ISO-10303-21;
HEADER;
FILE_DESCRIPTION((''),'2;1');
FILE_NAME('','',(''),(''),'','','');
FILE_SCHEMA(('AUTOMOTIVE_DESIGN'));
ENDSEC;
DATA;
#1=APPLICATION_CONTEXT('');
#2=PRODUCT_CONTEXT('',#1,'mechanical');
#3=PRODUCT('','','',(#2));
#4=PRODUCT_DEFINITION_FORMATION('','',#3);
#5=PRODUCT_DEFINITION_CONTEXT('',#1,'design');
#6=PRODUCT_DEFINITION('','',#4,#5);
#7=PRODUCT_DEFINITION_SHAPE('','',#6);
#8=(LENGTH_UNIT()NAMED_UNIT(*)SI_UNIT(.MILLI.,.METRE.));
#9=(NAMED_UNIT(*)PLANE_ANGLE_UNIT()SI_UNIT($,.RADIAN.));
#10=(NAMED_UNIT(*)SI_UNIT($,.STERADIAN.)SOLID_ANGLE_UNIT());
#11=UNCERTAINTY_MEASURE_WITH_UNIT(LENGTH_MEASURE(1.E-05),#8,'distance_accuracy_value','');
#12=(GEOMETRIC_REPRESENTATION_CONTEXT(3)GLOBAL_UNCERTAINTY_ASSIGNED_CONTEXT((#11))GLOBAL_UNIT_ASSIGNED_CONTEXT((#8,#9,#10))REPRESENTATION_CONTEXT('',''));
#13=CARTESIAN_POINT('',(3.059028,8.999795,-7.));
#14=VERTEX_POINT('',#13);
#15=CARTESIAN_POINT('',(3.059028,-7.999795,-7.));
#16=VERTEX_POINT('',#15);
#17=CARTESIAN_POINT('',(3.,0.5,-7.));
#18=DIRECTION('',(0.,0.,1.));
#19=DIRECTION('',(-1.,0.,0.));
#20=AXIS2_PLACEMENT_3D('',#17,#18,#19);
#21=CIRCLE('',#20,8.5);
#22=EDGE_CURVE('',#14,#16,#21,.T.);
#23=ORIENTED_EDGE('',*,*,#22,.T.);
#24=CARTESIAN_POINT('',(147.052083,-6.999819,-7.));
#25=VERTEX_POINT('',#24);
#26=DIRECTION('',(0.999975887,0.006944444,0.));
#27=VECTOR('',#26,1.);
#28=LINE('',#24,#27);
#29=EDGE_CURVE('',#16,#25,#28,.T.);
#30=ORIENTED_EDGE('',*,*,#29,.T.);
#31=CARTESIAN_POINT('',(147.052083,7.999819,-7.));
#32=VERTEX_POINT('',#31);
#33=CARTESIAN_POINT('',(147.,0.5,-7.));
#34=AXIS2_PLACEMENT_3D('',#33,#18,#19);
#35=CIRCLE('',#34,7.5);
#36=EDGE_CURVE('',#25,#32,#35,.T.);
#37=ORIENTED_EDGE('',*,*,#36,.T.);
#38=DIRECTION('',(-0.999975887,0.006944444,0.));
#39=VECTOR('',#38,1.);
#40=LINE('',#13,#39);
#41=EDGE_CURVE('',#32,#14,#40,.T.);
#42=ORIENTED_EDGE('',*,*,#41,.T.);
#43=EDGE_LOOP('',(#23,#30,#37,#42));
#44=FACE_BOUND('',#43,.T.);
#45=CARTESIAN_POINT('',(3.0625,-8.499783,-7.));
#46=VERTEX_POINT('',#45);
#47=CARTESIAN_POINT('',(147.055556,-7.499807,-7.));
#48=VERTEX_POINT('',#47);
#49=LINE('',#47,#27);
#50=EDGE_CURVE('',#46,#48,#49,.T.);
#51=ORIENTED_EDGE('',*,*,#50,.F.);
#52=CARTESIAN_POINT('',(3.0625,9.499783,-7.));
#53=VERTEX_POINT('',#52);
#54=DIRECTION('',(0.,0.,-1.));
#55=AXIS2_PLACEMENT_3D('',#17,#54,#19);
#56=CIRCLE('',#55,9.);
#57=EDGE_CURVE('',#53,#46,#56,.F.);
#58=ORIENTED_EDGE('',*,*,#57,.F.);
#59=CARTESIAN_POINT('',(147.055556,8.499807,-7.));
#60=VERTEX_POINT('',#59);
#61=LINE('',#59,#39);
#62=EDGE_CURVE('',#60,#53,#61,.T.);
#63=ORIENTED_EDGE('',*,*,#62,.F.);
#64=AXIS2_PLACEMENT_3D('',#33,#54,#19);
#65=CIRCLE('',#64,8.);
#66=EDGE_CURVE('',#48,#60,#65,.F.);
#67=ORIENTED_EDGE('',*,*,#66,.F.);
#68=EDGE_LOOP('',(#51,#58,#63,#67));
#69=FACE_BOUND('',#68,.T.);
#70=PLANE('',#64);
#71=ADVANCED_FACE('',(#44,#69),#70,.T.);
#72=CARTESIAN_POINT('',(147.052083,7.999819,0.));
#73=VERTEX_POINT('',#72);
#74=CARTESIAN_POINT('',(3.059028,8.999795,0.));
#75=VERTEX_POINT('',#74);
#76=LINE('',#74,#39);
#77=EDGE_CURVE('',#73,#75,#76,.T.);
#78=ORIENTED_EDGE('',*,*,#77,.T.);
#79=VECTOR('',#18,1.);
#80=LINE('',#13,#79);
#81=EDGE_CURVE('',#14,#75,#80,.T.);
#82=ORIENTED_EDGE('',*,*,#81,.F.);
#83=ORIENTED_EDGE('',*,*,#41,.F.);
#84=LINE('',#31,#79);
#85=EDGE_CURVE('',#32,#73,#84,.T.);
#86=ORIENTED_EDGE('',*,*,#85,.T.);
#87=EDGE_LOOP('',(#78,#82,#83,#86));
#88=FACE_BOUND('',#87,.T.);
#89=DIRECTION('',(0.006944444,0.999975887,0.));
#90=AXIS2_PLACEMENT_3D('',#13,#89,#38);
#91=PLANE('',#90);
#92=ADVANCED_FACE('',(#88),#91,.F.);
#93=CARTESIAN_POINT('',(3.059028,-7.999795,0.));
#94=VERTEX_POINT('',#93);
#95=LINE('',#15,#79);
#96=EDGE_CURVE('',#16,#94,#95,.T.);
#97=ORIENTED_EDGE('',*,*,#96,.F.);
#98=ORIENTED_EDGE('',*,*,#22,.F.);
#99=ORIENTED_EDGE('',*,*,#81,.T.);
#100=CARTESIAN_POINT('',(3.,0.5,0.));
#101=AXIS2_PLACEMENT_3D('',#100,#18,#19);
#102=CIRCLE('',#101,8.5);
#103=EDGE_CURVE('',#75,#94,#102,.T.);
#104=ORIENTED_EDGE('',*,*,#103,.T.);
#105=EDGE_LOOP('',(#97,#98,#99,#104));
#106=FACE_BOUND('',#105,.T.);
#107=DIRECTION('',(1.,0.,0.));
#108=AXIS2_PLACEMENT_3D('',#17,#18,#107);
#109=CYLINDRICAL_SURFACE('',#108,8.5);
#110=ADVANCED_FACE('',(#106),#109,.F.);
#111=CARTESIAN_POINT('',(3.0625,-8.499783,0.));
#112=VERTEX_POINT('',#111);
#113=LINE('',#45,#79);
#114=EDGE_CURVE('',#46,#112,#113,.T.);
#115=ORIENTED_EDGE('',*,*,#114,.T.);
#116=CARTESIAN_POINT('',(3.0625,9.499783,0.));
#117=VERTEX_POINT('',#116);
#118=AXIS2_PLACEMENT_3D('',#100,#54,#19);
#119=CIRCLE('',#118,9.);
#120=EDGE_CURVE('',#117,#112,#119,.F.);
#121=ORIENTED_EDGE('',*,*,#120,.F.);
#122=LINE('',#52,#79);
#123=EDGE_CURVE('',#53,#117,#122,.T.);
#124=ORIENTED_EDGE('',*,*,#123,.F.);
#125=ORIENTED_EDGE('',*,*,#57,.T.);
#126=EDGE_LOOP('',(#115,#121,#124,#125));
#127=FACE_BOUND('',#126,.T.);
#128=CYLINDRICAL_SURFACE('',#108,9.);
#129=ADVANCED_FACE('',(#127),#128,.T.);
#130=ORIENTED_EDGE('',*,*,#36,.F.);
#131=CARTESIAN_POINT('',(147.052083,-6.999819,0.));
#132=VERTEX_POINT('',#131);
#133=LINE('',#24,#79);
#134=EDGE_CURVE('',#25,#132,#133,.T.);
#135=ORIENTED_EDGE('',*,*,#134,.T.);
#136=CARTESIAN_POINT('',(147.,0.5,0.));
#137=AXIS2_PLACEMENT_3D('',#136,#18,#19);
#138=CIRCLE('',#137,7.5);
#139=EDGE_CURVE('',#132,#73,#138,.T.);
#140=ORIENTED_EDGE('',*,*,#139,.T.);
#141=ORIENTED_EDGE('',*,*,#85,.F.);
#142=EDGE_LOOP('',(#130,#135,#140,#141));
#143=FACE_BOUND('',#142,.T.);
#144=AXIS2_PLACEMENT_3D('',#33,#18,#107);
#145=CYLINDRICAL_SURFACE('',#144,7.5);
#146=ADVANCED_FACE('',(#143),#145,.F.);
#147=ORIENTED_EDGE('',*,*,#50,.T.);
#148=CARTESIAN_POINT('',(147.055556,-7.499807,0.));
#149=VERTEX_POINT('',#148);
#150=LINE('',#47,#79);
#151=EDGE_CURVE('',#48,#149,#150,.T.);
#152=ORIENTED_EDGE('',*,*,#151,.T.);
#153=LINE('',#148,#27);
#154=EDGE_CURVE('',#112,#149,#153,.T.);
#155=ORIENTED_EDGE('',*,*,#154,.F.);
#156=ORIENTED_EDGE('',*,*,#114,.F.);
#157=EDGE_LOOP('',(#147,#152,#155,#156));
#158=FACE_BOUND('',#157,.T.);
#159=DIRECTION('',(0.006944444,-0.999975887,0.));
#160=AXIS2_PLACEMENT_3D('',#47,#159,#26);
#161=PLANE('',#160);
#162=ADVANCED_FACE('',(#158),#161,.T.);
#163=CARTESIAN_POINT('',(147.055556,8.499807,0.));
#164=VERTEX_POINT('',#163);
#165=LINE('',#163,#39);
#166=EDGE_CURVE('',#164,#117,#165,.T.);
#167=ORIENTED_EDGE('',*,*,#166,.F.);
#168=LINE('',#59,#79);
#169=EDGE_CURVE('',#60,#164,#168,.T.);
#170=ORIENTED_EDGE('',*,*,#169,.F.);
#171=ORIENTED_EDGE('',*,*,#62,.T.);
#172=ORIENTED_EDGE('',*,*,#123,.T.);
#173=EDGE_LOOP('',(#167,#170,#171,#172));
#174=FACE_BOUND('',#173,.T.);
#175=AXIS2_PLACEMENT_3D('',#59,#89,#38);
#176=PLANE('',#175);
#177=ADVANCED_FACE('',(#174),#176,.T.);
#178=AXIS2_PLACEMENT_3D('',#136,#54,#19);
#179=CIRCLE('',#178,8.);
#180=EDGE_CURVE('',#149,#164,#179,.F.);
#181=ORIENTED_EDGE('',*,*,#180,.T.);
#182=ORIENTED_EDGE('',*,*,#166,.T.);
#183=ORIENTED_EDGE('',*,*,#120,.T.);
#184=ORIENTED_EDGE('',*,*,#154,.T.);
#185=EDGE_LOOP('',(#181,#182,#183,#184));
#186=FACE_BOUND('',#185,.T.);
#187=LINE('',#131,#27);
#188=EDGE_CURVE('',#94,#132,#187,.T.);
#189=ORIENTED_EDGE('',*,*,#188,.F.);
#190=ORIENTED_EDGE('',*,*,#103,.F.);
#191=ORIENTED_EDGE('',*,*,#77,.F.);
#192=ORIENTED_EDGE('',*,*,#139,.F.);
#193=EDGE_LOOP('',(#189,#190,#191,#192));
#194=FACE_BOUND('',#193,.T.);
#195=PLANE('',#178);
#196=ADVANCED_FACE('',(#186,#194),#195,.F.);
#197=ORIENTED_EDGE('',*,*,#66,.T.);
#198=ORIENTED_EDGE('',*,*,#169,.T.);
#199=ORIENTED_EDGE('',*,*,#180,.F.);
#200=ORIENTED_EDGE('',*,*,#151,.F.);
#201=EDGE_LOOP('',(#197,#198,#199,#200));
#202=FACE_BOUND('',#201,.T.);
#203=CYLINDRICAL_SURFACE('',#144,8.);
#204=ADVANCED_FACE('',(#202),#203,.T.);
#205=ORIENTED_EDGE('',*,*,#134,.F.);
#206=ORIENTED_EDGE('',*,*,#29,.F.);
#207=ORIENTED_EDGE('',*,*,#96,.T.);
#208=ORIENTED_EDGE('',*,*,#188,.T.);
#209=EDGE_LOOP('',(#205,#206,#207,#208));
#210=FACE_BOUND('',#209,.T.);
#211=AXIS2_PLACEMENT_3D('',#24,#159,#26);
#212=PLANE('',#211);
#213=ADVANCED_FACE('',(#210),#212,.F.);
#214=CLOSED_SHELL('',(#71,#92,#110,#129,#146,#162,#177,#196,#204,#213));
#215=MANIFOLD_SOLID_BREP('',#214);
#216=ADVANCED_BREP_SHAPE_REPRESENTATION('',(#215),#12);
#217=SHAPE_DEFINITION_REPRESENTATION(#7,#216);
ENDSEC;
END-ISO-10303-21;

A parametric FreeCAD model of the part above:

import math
import FreeCAD as App
import Part
import Sketcher
from FreeCAD import Vector

doc = App.newDocument("Part")
body = doc.addObject("PartDesign::Body", "Body")

# Sketch on XY plane
sketch1 = body.newObject("Sketcher::SketchObject", "Sketch")
sketch1.AttachmentSupport = (doc.getObject("XY_Plane"), [""])
sketch1.MapMode = "FlatFace"
sketch1.addGeometry(Part.LineSegment(Vector(147.055556, 8.499807, 0), Vector(3.0625, 9.499783, 0)), False)
sketch1.addGeometry(Part.ArcOfCircle(Part.Circle(Vector(3, 0.5, 0), Vector(0, 0, 1), 9), math.radians(89.602109), math.radians(270.397891)), False)
sketch1.addGeometry(Part.LineSegment(Vector(3.0625, -8.499783, 0), Vector(147.055556, -7.499807, 0)), False)
sketch1.addGeometry(Part.ArcOfCircle(Part.Circle(Vector(147, 0.5, 0), Vector(0, 0, 1), 8), math.radians(-89.602109), math.radians(89.602109)), False)
sketch1.addGeometry(Part.LineSegment(Vector(3.059028, 8.999795, 0), Vector(147.052083, 7.999819, 0)), False)
sketch1.addGeometry(Part.ArcOfCircle(Part.Circle(Vector(147, 0.5, 0), Vector(0, 0, 1), 7.5), math.radians(-89.602109), math.radians(89.602109)), False)
sketch1.addGeometry(Part.LineSegment(Vector(147.052083, -6.999819, 0), Vector(3.059028, -7.999795, 0)), False)
sketch1.addGeometry(Part.ArcOfCircle(Part.Circle(Vector(3, 0.5, 0), Vector(0, 0, 1), 8.5), math.radians(89.602109), math.radians(270.397891)), False)
sketch1.addConstraint(Sketcher.Constraint("Tangent", 0, 2, 1, 1))
sketch1.addConstraint(Sketcher.Constraint("Tangent", 1, 2, 2, 1))
sketch1.addConstraint(Sketcher.Constraint("Tangent", 2, 2, 3, 1))
sketch1.addConstraint(Sketcher.Constraint("Tangent", 3, 2, 0, 1))
sketch1.addConstraint(Sketcher.Constraint("Tangent", 4, 2, 5, 2))
sketch1.addConstraint(Sketcher.Constraint("Tangent", 5, 1, 6, 1))
sketch1.addConstraint(Sketcher.Constraint("Tangent", 6, 2, 7, 2))
sketch1.addConstraint(Sketcher.Constraint("Tangent", 7, 1, 4, 1))
sketch1.addConstraint(Sketcher.Constraint("Coincident", 5, 3, 3, 3))
sketch1.addConstraint(Sketcher.Constraint("Coincident", 7, 3, 1, 3))
sketch1.addConstraint(Sketcher.Constraint("Parallel", 0, 4))
sketch1.addConstraint(Sketcher.Constraint("Horizontal", 1, 3, 3, 3))
sketch1.addConstraint(Sketcher.Constraint("Radius", 1, 9.0))
sketch1.addConstraint(Sketcher.Constraint("Radius", 3, 8.0))
sketch1.addConstraint(Sketcher.Constraint("Radius", 5, 7.5))
sketch1.addConstraint(Sketcher.Constraint("DistanceX", -1, 1, 1, 3, 3.0))
sketch1.addConstraint(Sketcher.Constraint("DistanceX", -1, 1, 3, 3, 147.0))
sketch1.addConstraint(Sketcher.Constraint("DistanceY", -1, 1, 1, 3, 0.5))
pad1 = body.newObject("PartDesign::Pad", "Pad")
pad1.Profile = sketch1
pad1.Length = 7
pad1.Reversed = True

doc.recompute()
